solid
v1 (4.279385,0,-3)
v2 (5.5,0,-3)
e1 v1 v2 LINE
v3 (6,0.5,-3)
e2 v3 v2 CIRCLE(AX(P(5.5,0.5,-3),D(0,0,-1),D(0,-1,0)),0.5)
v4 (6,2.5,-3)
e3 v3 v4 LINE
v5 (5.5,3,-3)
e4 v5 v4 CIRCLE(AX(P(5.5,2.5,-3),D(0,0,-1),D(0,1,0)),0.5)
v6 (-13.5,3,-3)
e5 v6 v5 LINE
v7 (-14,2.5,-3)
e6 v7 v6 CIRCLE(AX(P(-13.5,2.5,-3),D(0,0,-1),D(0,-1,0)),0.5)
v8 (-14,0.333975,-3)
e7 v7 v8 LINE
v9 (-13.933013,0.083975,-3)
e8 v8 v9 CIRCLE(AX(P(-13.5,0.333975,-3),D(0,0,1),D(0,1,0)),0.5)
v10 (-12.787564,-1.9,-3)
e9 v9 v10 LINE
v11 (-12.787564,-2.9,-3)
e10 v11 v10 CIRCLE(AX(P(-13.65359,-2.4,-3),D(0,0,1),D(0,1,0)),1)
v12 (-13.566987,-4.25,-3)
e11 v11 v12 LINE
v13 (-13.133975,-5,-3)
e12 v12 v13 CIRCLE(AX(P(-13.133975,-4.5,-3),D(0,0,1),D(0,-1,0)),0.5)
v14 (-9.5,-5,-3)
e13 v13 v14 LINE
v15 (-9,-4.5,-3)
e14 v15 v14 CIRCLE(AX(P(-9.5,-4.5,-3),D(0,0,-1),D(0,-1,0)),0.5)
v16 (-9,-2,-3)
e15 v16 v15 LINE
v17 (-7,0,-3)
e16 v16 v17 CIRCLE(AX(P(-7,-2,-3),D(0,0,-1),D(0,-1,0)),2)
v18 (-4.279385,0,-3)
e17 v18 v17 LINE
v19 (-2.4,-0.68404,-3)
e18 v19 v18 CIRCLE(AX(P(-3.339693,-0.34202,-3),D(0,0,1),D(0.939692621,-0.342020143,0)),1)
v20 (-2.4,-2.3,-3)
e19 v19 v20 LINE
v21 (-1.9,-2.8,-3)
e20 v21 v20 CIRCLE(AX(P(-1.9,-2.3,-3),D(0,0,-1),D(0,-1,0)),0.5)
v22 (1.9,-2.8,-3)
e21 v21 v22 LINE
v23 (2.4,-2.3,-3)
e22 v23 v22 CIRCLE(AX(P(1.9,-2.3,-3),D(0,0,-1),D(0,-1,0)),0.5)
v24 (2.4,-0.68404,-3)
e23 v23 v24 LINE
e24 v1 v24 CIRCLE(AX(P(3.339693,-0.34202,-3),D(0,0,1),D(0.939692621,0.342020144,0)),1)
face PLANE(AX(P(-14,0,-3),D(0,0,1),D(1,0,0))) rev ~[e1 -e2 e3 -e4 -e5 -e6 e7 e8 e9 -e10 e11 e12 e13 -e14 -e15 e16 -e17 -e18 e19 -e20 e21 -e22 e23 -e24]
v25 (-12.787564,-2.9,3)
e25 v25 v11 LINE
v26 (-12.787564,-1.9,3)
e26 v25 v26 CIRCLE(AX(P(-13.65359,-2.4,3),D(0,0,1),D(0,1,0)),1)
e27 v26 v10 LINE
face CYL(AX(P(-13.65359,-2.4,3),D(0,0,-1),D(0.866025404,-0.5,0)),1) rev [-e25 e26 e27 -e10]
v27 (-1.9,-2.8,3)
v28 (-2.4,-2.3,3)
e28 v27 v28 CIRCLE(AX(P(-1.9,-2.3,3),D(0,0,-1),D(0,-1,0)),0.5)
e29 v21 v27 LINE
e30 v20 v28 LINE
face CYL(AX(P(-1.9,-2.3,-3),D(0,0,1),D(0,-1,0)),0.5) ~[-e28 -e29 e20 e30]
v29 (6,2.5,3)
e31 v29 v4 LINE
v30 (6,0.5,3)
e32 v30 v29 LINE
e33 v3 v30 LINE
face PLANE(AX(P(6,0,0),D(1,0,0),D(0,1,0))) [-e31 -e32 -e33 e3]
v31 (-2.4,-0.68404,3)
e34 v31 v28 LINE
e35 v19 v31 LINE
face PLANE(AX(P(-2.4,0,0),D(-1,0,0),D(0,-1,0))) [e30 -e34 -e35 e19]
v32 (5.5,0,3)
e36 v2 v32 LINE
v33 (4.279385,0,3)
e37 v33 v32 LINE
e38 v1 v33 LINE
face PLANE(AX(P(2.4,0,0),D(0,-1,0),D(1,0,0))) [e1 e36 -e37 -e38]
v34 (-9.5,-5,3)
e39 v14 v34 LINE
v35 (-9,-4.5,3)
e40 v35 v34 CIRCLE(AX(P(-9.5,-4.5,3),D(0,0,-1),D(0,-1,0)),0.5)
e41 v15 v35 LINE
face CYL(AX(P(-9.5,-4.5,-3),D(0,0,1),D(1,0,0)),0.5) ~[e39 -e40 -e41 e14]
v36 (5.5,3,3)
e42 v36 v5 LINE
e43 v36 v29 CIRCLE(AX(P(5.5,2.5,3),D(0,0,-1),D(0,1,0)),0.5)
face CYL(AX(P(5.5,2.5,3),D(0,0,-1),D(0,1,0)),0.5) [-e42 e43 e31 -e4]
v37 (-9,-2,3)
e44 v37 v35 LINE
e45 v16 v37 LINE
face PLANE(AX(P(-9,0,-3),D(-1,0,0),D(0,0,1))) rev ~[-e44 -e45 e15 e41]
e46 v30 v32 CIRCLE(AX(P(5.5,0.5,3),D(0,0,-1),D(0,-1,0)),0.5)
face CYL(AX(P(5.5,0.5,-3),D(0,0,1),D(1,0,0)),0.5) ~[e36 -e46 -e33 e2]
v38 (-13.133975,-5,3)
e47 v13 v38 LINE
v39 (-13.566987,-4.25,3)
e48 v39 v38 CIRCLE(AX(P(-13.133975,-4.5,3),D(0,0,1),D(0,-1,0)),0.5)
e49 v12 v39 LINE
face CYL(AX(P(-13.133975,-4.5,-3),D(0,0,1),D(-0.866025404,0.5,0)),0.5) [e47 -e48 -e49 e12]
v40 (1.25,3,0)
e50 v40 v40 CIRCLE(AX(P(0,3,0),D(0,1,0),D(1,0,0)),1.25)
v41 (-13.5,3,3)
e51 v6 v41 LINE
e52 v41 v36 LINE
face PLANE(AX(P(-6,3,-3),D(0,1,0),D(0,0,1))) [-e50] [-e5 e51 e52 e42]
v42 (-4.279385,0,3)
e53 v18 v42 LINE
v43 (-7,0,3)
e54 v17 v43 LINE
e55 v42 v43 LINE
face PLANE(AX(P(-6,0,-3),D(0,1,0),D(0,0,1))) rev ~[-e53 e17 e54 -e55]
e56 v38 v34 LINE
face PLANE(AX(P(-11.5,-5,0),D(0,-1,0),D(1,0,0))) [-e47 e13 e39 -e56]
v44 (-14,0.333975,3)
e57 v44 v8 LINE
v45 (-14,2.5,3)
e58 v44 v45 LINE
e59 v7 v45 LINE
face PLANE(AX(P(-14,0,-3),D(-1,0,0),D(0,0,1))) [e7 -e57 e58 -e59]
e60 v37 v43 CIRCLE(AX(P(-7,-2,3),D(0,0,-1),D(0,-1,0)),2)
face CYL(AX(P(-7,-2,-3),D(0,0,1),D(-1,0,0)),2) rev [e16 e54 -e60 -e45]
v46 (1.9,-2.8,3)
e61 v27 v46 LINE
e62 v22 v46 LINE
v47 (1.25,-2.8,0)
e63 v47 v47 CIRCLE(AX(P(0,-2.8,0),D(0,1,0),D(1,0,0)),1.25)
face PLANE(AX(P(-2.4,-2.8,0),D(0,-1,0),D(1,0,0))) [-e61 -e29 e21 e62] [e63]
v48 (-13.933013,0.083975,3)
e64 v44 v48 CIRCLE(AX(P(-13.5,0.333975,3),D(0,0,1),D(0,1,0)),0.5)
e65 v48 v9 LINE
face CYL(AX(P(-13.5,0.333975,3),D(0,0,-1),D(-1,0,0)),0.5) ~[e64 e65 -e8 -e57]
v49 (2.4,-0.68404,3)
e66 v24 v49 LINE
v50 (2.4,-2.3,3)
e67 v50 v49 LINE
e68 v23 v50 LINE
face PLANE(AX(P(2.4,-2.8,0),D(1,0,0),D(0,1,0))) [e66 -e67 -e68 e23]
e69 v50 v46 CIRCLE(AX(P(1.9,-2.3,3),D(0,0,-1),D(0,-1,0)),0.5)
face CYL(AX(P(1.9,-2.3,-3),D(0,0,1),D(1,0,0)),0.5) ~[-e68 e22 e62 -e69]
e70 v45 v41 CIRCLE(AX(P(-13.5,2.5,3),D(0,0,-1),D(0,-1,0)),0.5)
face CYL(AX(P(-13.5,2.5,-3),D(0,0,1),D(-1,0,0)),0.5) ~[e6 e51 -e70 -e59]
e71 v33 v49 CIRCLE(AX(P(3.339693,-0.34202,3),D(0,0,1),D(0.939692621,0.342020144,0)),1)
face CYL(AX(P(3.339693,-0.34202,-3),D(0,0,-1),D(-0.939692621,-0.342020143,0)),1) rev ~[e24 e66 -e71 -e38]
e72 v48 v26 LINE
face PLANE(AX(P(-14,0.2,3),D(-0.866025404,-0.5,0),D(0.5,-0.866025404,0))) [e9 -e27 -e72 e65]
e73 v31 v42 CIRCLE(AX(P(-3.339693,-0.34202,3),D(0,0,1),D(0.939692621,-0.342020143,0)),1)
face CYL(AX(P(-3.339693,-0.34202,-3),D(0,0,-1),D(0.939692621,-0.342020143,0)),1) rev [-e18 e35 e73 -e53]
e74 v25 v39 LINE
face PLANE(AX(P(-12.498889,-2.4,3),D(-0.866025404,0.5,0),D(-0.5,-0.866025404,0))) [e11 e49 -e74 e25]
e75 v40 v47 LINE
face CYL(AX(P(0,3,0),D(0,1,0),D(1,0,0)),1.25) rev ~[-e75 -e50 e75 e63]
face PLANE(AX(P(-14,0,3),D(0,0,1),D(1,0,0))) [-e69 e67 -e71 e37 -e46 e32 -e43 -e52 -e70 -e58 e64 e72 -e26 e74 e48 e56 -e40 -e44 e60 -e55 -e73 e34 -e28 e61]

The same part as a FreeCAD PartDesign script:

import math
import FreeCAD as App
import Part
import Sketcher
from FreeCAD import Vector
Q = App.Units.Quantity


def edges_at(feature, points):
    """Names of the edges that pass closest to the given points."""
    edges = feature.Shape.Edges
    near = lambda p: min(range(len(edges)), key=lambda i: edges[i].distToShape(Part.Vertex(*p))[0])
    return sorted({f"Edge{near(p) + 1}" for p in points})


def add_polygon(sketch, points):
    """Adds a closed chain of lines whose ends are joined by coincident constraints."""
    first, n = sketch.GeometryCount, len(points)
    for a, b in zip(points, points[1:] + points[:1]):
        sketch.addGeometry(Part.LineSegment(App.Vector(*a, 0), App.Vector(*b, 0)), False)
    for i in range(n):
        sketch.addConstraint(Sketcher.Constraint("Coincident", first + i, 2, first + (i + 1) % n, 1))

doc = App.newDocument("Part")
body = doc.addObject("PartDesign::Body", "Body")

# Sketch on XY plane
sketch1 = body.newObject("Sketcher::SketchObject", "Sketch")
sketch1.AttachmentSupport = (doc.getObject("XY_Plane"), [""])
sketch1.MapMode = "FlatFace"
add_polygon(sketch1, [(-6, 0), (-2.4, 0), (-2.4, -2.8), (2.4, -2.8), (2.4, 0), (6, 0), (6, 3), (-6, 3)])  # lines 0-7
sketch1.addConstraint([
    Sketcher.Constraint("Horizontal", 0),
    Sketcher.Constraint("Vertical", 1),
    Sketcher.Constraint("Horizontal", 2),
    Sketcher.Constraint("Vertical", 3),
    Sketcher.Constraint("Horizontal", 4),
    Sketcher.Constraint("Vertical", 5),
    Sketcher.Constraint("Horizontal", 6),
    Sketcher.Constraint("Vertical", 7),
    Sketcher.Constraint("Symmetric", 0, 2, 3, 2, -1, 1),
    Sketcher.Constraint("Symmetric", 4, 2, 7, 2, -2),
    Sketcher.Constraint("DistanceX", 6, 2, 6, 1, 12.0),
    Sketcher.Constraint("DistanceY", 5, 1, 5, 2, 3.0),
    Sketcher.Constraint("DistanceX", 0, 1, 0, 2, 3.6),
    Sketcher.Constraint("DistanceY", 1, 2, 1, 1, 2.8),
])
pad1 = body.newObject("PartDesign::Pad", "Pad")
pad1.Profile = sketch1
pad1.Length = 6
pad1.Midplane = True

# Sketch on XZ plane
sketch2 = body.newObject("Sketcher::SketchObject", "Sketch001")
sketch2.AttachmentSupport = (doc.getObject("XZ_Plane"), [""])
sketch2.MapMode = "FlatFace"
sketch2.AttachmentOffset = App.Placement(Vector(0, 0, -3), App.Rotation())
sketch2.addGeometry(Part.Circle(Vector(0, 0, 0), Vector(0, 0, 1), 1.2), False)
sketch2.addConstraint([
    Sketcher.Constraint("Coincident", 0, 3, -1, 1),
    Sketcher.Constraint("Diameter", 0, 2.5),
])
pocket1 = body.newObject("PartDesign::Pocket", "Pocket")
pocket1.Profile = sketch2
pocket1.Type = "ThroughAll"
pocket1.Reversed = True

# Sketch on YZ plane
sketch3 = body.newObject("Sketcher::SketchObject", "Sketch002")
sketch3.AttachmentSupport = (doc.getObject("YZ_Plane"), [""])
sketch3.MapMode = "FlatFace"
sketch3.AttachmentOffset = App.Placement(Vector(0, 0, -6), App.Rotation())
add_polygon(sketch3, [(3, -3), (0, -3), (0, 3), (3, 3)])  # lines 0-3
sketch3.addConstraint([
    Sketcher.Constraint("Horizontal", 0),
    Sketcher.Constraint("Vertical", 1),
    Sketcher.Constraint("Horizontal", 2),
    Sketcher.Constraint("Vertical", 3),
    Sketcher.Constraint("Symmetric", 0, 2, 1, 2, -1, 1),
    Sketcher.Constraint("DistanceX", 0, 2, 0, 1, 3.0),
    Sketcher.Constraint("DistanceY", 1, 1, 1, 2, 6.0),
])
pad2 = body.newObject("PartDesign::Pad", "Pad001")
pad2.Profile = sketch3
pad2.Length = 8
pad2.Reversed = True

# Sketch on XZ plane
sketch4 = body.newObject("Sketcher::SketchObject", "Sketch003")
sketch4.AttachmentSupport = (doc.getObject("XZ_Plane"), [""])
sketch4.MapMode = "FlatFace"
add_polygon(sketch4, [(-14, 3), (-14, -3), (-9, -3), (-9, 3)])  # lines 0-3
sketch4.addConstraint([
    Sketcher.Constraint("Vertical", 0),
    Sketcher.Constraint("Horizontal", 1),
    Sketcher.Constraint("Vertical", 2),
    Sketcher.Constraint("Horizontal", 3),
    Sketcher.Constraint("DistanceX", 1, 1, 1, 2, 5.0),
    Sketcher.Constraint("DistanceY", 0, 2, 0, 1, 6.0),
    Sketcher.Constraint("DistanceX", 0, 2, -1, 1, 14.0),
    Sketcher.Constraint("DistanceY", 0, 2, -1, 1, 3.0),
])
pad3 = body.newObject("PartDesign::Pad", "Pad002")
pad3.Profile = sketch4
pad3.Length = 5

# Sketch on XY plane
sketch5 = body.newObject("Sketcher::SketchObject", "Sketch004")
sketch5.AttachmentSupport = (doc.getObject("XY_Plane"), [""])
sketch5.MapMode = "FlatFace"
sketch5.AttachmentOffset = App.Placement(Vector(0, 0, 3), App.Rotation())
add_polygon(sketch5, [(-12.5, -2.4), (-14, 0.2), (-14, -5)])  # lines 0-2
sketch5.addConstraint([
    Sketcher.Constraint("Vertical", 1),
    Sketcher.Constraint("Equal", 0, 2),
    Sketcher.Constraint("Angle", 0, Q("120 deg")),
    Sketcher.Constraint("DistanceY", 1, 2, 1, 1, 5.2),
    Sketcher.Constraint("DistanceX", 0, 2, -1, 1, 14.0),
    Sketcher.Constraint("DistanceY", 1, 2, -1, 1, 5.0),
])
pocket2 = body.newObject("PartDesign::Pocket", "Pocket001")
pocket2.Profile = sketch5
pocket2.Type = "ThroughAll"
doc.recompute()

fillet = body.newObject("PartDesign::Fillet", "Fillet")
fillet.Base = (pocket2, edges_at(pocket2, [
    (6, 0, 0),
    (2.4, -2.8, 0),
    (-2.4, -2.8, 0),
    (6, 3, 0),
    (-14, 3, 0),
    (-14, -5, 0),
    (-9, -5, 0),
    (-14, 0.2, 0),
]))
fillet.Radius = 0.5
doc.recompute()

fillet2 = body.newObject("PartDesign::Fillet", "Fillet001")
fillet2.Base = (fillet, edges_at(fillet, [(-9, 0, 0)]))
fillet2.Radius = 2
doc.recompute()

fillet3 = body.newObject("PartDesign::Fillet", "Fillet002")
fillet3.Base = (fillet2, edges_at(fillet2, [(-12.499, -2.4, 0)]))
fillet3.Radius = 1

# Sketch on XY plane
sketch6 = body.newObject("Sketcher::SketchObject", "Sketch005")
sketch6.AttachmentSupport = (doc.getObject("XY_Plane"), [""])
sketch6.MapMode = "FlatFace"
sketch6.AttachmentOffset = App.Placement(Vector(0, 0, -3), App.Rotation())
sketch6.addGeometry([
    Part.LineSegment(Vector(4.3, 0, 0), Vector(2.4, -0.7, 0)),
    Part.ArcOfCircle(Part.Circle(Vector(3.3, -0.3, 0), Vector(0, 0, 1), 1), math.radians(20), math.radians(200)),
    Part.LineSegment(Vector(-2.4, -0.7, 0), Vector(-4.3, 0, 0)),
    Part.ArcOfCircle(Part.Circle(Vector(-3.3, -0.3, 0), Vector(0, 0, 1), 1), math.radians(-20), math.radians(160)),
], False)
sketch6.addConstraint([
    Sketcher.Constraint("Coincident", 0, 1, 1, 1),
    Sketcher.Constraint("Coincident", 1, 2, 0, 2),
    Sketcher.Constraint("Coincident", 2, 1, 3, 1),
    Sketcher.Constraint("Coincident", 3, 2, 2, 2),
    Sketcher.Constraint("Equal", 1, 3),
    Sketcher.Constraint("Symmetric", 0, 1, 3, 2, -1, 1),
    Sketcher.Constraint("Symmetric", 1, 3, 3, 3, -2),
    Sketcher.Constraint("Horizontal", 1, 2, 2, 1),
    Sketcher.Constraint("Radius", 1, 1.0),
    Sketcher.Constraint("Angle", 0, Q("-160 deg")),
    Sketcher.Constraint("DistanceX", -1, 1, 1, 2, 2.4),
    Sketcher.Constraint("DistanceY", 1, 3, -1, 1, 0.34202),
])
pocket3 = body.newObject("PartDesign::Pocket", "Pocket002")
pocket3.Profile = sketch6
pocket3.Type = "ThroughAll"
pocket3.Reversed = True

doc.recompute()
